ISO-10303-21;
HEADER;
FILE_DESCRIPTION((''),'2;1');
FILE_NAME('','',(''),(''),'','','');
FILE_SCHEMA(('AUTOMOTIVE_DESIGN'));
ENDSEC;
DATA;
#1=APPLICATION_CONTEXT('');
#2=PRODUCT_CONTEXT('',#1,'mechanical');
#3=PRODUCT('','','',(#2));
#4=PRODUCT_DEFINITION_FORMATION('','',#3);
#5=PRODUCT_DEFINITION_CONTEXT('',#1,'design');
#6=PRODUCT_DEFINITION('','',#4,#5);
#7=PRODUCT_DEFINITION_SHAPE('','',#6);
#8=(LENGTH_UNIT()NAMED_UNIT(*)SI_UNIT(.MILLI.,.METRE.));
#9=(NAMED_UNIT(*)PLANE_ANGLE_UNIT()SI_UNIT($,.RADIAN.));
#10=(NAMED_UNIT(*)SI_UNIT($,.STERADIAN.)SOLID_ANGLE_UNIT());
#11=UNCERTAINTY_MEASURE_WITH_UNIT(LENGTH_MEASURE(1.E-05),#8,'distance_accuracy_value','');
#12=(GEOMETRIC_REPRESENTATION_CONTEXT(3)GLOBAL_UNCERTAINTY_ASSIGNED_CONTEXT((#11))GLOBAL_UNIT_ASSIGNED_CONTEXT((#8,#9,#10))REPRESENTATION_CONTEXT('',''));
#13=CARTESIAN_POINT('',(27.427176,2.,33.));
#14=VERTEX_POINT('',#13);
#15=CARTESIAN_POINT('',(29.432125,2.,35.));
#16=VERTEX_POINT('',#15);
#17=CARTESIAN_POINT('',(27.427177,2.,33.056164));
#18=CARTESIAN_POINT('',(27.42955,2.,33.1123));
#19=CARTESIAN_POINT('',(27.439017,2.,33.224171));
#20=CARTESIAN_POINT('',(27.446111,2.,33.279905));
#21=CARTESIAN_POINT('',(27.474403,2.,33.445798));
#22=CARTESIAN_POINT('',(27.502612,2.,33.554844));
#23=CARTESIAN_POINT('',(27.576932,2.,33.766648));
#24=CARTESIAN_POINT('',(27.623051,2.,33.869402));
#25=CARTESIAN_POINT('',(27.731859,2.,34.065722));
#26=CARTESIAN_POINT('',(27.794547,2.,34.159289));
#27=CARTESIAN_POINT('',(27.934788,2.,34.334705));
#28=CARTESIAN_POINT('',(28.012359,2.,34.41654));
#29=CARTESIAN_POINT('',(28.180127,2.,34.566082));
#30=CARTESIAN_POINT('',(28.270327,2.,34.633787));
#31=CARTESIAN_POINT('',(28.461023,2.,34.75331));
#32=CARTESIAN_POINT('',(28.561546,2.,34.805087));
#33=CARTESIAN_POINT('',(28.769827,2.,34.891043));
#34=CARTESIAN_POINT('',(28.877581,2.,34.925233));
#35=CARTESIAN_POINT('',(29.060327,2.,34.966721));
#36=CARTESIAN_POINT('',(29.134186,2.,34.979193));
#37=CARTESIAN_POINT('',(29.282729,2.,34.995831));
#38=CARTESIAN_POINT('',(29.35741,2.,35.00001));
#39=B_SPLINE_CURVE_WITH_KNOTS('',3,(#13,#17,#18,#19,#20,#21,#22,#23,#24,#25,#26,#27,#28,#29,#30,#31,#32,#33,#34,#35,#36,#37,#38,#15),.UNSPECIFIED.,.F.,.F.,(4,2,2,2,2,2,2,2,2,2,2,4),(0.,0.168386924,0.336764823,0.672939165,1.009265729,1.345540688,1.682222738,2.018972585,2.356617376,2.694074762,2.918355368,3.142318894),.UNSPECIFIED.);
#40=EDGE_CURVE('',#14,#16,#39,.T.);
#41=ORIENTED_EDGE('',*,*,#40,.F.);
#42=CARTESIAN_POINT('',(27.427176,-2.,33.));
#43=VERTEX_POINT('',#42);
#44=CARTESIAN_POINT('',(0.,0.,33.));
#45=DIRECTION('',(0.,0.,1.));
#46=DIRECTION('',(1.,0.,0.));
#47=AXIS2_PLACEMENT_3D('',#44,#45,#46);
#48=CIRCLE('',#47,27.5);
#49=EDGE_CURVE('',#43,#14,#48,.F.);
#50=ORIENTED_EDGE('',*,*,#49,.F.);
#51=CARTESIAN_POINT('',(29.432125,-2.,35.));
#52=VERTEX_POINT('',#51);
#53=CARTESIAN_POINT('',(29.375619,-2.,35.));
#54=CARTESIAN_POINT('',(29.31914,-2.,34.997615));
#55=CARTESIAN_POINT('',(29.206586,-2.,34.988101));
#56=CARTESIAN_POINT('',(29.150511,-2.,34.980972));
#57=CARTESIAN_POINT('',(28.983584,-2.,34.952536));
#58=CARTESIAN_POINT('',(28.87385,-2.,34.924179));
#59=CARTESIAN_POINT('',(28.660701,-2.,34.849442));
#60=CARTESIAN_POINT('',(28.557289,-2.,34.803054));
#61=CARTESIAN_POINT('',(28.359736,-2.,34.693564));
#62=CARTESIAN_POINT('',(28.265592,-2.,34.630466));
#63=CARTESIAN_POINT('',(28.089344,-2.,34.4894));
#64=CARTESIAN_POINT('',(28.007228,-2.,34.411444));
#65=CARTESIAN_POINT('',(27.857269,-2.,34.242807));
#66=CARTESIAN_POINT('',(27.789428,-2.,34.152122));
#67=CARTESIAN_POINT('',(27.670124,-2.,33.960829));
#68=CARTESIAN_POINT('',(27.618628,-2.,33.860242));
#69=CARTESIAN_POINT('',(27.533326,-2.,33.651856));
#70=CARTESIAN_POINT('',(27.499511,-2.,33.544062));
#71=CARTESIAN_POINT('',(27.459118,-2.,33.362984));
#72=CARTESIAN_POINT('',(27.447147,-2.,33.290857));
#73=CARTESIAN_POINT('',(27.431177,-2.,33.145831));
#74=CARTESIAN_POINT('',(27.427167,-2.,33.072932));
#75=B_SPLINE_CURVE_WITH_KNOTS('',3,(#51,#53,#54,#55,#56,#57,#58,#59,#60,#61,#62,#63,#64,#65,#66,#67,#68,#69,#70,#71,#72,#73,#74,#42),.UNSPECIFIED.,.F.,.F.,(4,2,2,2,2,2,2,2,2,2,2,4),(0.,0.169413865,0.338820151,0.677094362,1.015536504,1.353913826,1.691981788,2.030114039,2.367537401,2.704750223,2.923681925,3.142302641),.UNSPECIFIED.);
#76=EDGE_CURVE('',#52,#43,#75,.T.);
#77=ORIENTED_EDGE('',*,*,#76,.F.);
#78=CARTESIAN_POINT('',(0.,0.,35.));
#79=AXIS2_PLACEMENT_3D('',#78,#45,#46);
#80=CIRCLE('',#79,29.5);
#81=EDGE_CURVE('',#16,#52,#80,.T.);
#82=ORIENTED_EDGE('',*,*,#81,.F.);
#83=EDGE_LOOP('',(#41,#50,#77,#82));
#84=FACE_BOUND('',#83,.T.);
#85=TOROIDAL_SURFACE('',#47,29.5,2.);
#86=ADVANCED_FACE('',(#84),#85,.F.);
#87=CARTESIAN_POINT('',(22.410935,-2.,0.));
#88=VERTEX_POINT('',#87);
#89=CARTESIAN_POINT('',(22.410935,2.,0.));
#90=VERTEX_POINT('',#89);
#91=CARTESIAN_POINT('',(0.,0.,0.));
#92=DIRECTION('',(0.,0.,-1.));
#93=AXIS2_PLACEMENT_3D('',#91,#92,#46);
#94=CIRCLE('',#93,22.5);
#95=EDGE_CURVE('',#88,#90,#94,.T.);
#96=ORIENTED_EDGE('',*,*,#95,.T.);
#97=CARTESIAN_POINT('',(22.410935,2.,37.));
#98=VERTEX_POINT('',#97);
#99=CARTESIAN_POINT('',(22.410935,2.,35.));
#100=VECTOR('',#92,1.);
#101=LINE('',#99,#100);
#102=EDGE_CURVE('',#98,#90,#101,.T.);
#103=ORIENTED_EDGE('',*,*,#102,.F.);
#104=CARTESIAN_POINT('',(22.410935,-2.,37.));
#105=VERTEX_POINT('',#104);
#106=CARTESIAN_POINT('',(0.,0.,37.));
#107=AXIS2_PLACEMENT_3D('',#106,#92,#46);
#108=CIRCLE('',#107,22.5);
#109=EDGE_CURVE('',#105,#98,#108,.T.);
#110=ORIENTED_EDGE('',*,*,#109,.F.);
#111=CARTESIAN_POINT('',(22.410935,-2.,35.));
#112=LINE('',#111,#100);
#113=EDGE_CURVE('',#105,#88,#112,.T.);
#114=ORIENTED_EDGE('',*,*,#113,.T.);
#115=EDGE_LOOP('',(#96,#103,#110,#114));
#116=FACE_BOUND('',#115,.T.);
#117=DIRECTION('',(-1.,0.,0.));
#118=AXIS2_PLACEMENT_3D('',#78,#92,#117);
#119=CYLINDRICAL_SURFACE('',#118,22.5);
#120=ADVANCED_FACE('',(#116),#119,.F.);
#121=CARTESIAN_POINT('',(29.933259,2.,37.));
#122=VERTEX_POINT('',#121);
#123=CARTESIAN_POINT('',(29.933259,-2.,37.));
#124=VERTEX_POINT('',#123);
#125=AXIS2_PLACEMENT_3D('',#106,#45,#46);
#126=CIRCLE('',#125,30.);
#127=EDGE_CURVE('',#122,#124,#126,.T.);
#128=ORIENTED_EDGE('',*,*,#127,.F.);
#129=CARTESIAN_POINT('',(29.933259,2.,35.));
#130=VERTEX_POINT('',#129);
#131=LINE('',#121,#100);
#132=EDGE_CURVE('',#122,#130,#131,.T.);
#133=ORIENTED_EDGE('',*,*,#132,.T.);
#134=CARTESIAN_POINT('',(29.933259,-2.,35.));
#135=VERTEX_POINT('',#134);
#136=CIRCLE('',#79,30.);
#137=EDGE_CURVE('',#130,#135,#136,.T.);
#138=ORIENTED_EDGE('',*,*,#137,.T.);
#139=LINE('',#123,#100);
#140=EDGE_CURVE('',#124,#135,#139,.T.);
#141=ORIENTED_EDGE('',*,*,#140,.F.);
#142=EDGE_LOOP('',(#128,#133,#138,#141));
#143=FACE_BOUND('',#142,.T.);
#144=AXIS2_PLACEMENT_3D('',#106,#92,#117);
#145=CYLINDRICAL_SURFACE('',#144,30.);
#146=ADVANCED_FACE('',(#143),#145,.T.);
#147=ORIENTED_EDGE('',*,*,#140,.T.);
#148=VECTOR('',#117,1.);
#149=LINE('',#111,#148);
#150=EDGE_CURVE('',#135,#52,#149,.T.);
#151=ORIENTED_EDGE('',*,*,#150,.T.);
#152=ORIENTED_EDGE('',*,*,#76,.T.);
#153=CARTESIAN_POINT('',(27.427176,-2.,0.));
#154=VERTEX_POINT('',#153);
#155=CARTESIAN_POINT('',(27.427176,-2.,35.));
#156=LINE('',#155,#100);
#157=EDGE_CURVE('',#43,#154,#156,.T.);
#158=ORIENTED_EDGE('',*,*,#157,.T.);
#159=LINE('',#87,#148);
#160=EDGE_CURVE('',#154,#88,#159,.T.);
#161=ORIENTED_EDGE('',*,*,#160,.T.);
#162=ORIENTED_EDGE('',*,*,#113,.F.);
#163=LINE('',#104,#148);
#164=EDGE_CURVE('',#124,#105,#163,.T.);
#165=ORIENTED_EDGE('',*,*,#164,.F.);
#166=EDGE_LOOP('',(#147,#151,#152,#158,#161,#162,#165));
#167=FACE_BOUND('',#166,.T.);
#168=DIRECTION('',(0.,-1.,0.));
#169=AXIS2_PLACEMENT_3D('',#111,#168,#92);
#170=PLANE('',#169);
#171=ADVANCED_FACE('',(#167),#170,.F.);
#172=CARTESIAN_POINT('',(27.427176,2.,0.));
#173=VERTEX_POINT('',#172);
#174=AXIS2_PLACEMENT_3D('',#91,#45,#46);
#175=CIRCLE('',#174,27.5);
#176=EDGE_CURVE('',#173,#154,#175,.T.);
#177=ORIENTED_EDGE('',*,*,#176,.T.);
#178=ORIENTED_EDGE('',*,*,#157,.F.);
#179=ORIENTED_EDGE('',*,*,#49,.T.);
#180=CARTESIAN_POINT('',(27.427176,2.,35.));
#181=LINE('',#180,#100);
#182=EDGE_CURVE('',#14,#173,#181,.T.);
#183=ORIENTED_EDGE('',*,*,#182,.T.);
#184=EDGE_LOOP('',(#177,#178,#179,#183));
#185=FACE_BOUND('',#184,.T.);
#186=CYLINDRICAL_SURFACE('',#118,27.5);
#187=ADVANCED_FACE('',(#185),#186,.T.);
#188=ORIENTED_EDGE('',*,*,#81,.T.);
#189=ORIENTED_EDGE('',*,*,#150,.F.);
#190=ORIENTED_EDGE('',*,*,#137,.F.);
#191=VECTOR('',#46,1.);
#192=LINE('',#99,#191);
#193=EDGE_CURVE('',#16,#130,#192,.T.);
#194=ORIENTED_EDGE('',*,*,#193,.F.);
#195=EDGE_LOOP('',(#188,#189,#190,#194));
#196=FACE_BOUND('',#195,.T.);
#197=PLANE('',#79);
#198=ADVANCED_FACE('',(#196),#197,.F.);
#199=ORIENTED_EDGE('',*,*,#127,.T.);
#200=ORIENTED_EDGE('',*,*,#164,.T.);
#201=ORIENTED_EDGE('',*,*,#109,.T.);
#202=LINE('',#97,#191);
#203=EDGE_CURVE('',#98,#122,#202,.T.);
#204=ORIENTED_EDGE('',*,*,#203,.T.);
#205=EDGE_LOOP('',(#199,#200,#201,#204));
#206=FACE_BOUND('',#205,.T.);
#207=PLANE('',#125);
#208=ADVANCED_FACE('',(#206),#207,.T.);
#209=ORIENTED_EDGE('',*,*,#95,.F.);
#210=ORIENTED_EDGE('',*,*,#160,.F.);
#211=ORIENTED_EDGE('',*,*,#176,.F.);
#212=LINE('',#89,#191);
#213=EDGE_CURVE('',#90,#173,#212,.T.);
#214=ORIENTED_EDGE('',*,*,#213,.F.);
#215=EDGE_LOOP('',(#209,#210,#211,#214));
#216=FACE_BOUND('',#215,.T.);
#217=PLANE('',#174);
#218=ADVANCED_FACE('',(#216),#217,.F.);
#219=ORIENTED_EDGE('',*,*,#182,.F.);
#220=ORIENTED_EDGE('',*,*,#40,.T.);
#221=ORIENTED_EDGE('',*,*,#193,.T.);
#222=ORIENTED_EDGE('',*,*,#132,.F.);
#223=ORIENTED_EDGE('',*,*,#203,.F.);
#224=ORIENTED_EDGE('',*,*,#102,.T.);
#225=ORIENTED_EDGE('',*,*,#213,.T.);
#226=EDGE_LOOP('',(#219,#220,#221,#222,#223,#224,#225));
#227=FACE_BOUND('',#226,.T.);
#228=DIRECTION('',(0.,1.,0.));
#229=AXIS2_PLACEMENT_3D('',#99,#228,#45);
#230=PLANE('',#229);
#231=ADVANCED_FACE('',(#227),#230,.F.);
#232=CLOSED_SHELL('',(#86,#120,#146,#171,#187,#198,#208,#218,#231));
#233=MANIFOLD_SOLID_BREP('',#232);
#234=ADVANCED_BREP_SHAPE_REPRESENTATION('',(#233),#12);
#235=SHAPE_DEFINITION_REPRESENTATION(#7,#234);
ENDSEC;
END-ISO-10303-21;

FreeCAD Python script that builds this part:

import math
import FreeCAD as App
import Part
import Sketcher
from FreeCAD import Vector


def edges_at(feature, points):
    """Names of the edges that pass closest to the given points."""
    edges = feature.Shape.Edges
    near = lambda p: min(range(len(edges)), key=lambda i: edges[i].distToShape(Part.Vertex(*p))[0])
    return sorted({f"Edge{near(p) + 1}" for p in points})

doc = App.newDocument("Part")
body = doc.addObject("PartDesign::Body", "Body")

# Sketch on XY plane
sketch1 = doc.addObject("Sketcher::SketchObject", "Sketch")
body.addObject(sketch1)
sketch1.AttachmentSupport = (doc.XY_Plane, [""])
sketch1.MapMode = "FlatFace"
sketch1.addGeometry([
    Part.LineSegment(Vector(22.410935, 2, 0), Vector(27.427176, 2, 0)),
    Part.ArcOfCircle(Part.Circle(Vector(0, 0, 0), Vector(0, 0, 1), 27.5), math.radians(4.170648), math.radians(355.829352)),
    Part.LineSegment(Vector(27.427176, -2, 0), Vector(22.410935, -2, 0)),
    Part.ArcOfCircle(Part.Circle(Vector(0, 0, 0), Vector(0, 0, 1), 22.5), math.radians(5.099689), math.radians(354.900311)),
], False)
sketch1.addConstraint([
    Sketcher.Constraint("Coincident", 0, 2, 1, 1),
    Sketcher.Constraint("Coincident", 1, 2, 2, 1),
    Sketcher.Constraint("Coincident", 2, 2, 3, 2),
    Sketcher.Constraint("Coincident", 3, 1, 0, 1),
    Sketcher.Constraint("Horizontal", 0),
    Sketcher.Constraint("Horizontal", 2),
    Sketcher.Constraint("Coincident", 1, 3, -1, 1),
    Sketcher.Constraint("Coincident", 3, 3, -1, 1),
    Sketcher.Constraint("Vertical", 0, 2, 1, 2),
    Sketcher.Constraint("Radius", 1, 27.5),
    Sketcher.Constraint("Radius", 3, 22.5),
    Sketcher.Constraint("DistanceY", -1, 1, 0, 2, 2.0),
])
pad1 = doc.addObject("PartDesign::Pad", "Pad")
body.addObject(pad1)
pad1.Profile = sketch1
pad1.Length = 35

# Sketch on XY plane
sketch2 = doc.addObject("Sketcher::SketchObject", "Sketch001")
body.addObject(sketch2)
sketch2.AttachmentSupport = (doc.XY_Plane, [""])
sketch2.MapMode = "FlatFace"
sketch2.AttachmentOffset = App.Placement(Vector(0, 0, 35), App.Rotation())
sketch2.addGeometry([
    Part.LineSegment(Vector(22.410935, 2, 0), Vector(29.933259, 2, 0)),
    Part.ArcOfCircle(Part.Circle(Vector(0, 0, 0), Vector(0, 0, 1), 30), math.radians(3.822554), math.radians(356.177446)),
    Part.LineSegment(Vector(29.933259, -2, 0), Vector(22.410935, -2, 0)),
    Part.ArcOfCircle(Part.Circle(Vector(0, 0, 0), Vector(0, 0, 1), 22.5), math.radians(5.099689), math.radians(354.900311)),
], False)
sketch2.addConstraint([
    Sketcher.Constraint("Coincident", 0, 2, 1, 1),
    Sketcher.Constraint("Coincident", 1, 2, 2, 1),
    Sketcher.Constraint("Coincident", 2, 2, 3, 2),
    Sketcher.Constraint("Coincident", 3, 1, 0, 1),
    Sketcher.Constraint("Horizontal", 0),
    Sketcher.Constraint("Horizontal", 2),
    Sketcher.Constraint("Coincident", 1, 3, -1, 1),
    Sketcher.Constraint("Coincident", 3, 3, -1, 1),
    Sketcher.Constraint("Vertical", 0, 2, 1, 2),
    Sketcher.Constraint("Radius", 1, 30.0),
    Sketcher.Constraint("Radius", 3, 22.5),
    Sketcher.Constraint("DistanceY", -1, 1, 0, 2, 2.0),
])
pad2 = doc.addObject("PartDesign::Pad", "Pad001")
body.addObject(pad2)
pad2.Profile = sketch2
pad2.Length = 2
doc.recompute()

fillet = doc.addObject("PartDesign::Fillet", "Fillet")
body.addObject(fillet)
fillet.Base = (pad2, edges_at(pad2, [(-27.5, 0, 35)]))
fillet.Radius = 2

doc.recompute()
